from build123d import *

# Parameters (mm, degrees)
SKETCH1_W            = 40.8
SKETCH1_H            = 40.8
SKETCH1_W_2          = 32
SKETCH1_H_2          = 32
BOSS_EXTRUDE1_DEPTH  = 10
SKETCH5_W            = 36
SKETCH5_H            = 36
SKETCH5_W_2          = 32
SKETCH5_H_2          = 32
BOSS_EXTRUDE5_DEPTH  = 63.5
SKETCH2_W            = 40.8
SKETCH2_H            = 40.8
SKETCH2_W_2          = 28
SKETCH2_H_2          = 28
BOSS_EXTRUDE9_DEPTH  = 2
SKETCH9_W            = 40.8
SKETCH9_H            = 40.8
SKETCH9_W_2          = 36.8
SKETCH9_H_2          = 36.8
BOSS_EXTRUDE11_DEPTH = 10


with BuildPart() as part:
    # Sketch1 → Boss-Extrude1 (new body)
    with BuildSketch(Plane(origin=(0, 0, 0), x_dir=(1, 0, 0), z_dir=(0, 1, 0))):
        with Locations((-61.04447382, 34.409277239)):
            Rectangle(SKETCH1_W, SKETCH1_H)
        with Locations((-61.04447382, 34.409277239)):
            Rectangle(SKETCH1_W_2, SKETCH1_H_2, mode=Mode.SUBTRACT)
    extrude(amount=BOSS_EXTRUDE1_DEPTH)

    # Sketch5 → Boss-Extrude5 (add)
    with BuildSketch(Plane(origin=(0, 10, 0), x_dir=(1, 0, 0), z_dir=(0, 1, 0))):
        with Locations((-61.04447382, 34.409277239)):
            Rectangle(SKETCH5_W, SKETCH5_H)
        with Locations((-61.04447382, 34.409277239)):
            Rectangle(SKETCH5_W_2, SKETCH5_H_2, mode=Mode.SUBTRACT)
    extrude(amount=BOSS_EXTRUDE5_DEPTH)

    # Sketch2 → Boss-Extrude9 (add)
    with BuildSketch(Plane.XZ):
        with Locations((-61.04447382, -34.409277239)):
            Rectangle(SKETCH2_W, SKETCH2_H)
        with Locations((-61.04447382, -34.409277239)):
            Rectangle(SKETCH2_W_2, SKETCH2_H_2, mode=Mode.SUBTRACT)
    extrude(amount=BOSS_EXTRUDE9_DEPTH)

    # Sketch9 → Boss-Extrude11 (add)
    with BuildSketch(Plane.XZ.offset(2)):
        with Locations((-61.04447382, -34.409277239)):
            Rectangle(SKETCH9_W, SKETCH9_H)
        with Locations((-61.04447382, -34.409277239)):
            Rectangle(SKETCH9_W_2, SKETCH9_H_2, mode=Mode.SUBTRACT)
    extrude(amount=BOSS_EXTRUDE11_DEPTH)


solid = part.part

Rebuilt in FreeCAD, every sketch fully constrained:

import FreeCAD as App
import Part
import Sketcher
from FreeCAD import Vector


def add_polygon(sketch, points):
    """Adds a closed chain of lines whose ends are joined by coincident constraints."""
    first, n = sketch.GeometryCount, len(points)
    for a, b in zip(points, points[1:] + points[:1]):
        sketch.addGeometry(Part.LineSegment(App.Vector(*a, 0), App.Vector(*b, 0)), False)
    for i in range(n):
        sketch.addConstraint(Sketcher.Constraint("Coincident", first + i, 2, first + (i + 1) % n, 1))

doc = App.newDocument("Part")
params = doc.addObject("Spreadsheet::Sheet", "Params")
for row, (alias, value) in enumerate([
    ("sketch1_width", "32 mm"),
    ("sketch1_width2", "40.8 mm"),
    ("pad1_length", "10 mm"),
    ("sketch2_width", "36 mm"),
    ("sketch2_width2", "32 mm"),
    ("pad2_length", "63.5 mm"),
    ("sketch3_width", "28 mm"),
    ("sketch3_width2", "40.8 mm"),
    ("pad3_length", "2 mm"),
    ("sketch4_width", "40.8 mm"),
    ("sketch4_width2", "36.8 mm"),
    ("pad4_length", "10 mm"),
], start=1):
    params.set(f"A{row}", alias)
    params.set(f"B{row}", "=" + value)
    params.setAlias(f"B{row}", alias)

body = doc.addObject("PartDesign::Body", "Body")

sketch1 = doc.addObject("Sketcher::SketchObject", "Sketch")
body.addObject(sketch1)
sketch1.AttachmentSupport = (doc.XZ_Plane, [""])
sketch1.MapMode = "FlatFace"
add_polygon(sketch1, [(-81, -55), (-81, -14), (-41, -14), (-41, -55)])
add_polygon(sketch1, [(-45, -18), (-77, -18), (-77, -50), (-45, -50)])
sketch1.addConstraint([
    Sketcher.Constraint("Vertical", 0),
    Sketcher.Constraint("Horizontal", 1),
    Sketcher.Constraint("Vertical", 2),
    Sketcher.Constraint("Horizontal", 3),
    Sketcher.Constraint("Horizontal", 4),
    Sketcher.Constraint("Vertical", 5),
    Sketcher.Constraint("Horizontal", 6),
    Sketcher.Constraint("Vertical", 7),
    Sketcher.Constraint("Equal", 3, 0),
    Sketcher.Constraint("Equal", 6, 5),
    Sketcher.Constraint("DistanceX", 4, 2, 4, 1, 32.0),
    Sketcher.Constraint("DistanceX", 1, 1, 1, 2, 40.8),
    Sketcher.Constraint("DistanceX", 0, 2, 4, 2, 4.4),
    Sketcher.Constraint("DistanceY", 4, 2, 0, 2, 4.4),
    Sketcher.Constraint("DistanceX", 0, 2, -1, 1, 81.444474),
    Sketcher.Constraint("DistanceY", 0, 2, -1, 1, 14.009277),
])
sketch1.setExpression("Constraints[18]", "Params.sketch1_width")
sketch1.setExpression("Constraints[19]", "Params.sketch1_width2")
pad1 = doc.addObject("PartDesign::Pad", "Pad")
body.addObject(pad1)
pad1.Profile = sketch1
pad1.setExpression("Length", "Params.pad1_length")
pad1.Reversed = True

sketch2 = doc.addObject("Sketcher::SketchObject", "Sketch001")
body.addObject(sketch2)
sketch2.AttachmentSupport = (doc.XZ_Plane, [""])
sketch2.MapMode = "FlatFace"
sketch2.AttachmentOffset = App.Placement(Vector(0, 0, -10), App.Rotation())
add_polygon(sketch2, [(-79, -52), (-79, -16), (-43, -16), (-43, -52)])
add_polygon(sketch2, [(-45, -18), (-77, -18), (-77, -50), (-45, -50)])
sketch2.addConstraint([
    Sketcher.Constraint("Vertical", 0),
    Sketcher.Constraint("Horizontal", 1),
    Sketcher.Constraint("Vertical", 2),
    Sketcher.Constraint("Horizontal", 3),
    Sketcher.Constraint("Horizontal", 4),
    Sketcher.Constraint("Vertical", 5),
    Sketcher.Constraint("Horizontal", 6),
    Sketcher.Constraint("Vertical", 7),
    Sketcher.Constraint("Equal", 3, 0),
    Sketcher.Constraint("Equal", 6, 5),
    Sketcher.Constraint("DistanceX", 1, 1, 1, 2, 36.0),
    Sketcher.Constraint("DistanceX", 4, 2, 4, 1, 32.0),
    Sketcher.Constraint("DistanceX", 0, 2, 4, 2, 2.0),
    Sketcher.Constraint("DistanceY", 4, 2, 0, 2, 2.0),
    Sketcher.Constraint("DistanceX", 0, 2, -1, 1, 79.044474),
    Sketcher.Constraint("DistanceY", 0, 2, -1, 1, 16.409277),
])
sketch2.setExpression("Constraints[18]", "Params.sketch2_width")
sketch2.setExpression("Constraints[19]", "Params.sketch2_width2")
pad2 = doc.addObject("PartDesign::Pad", "Pad001")
body.addObject(pad2)
pad2.Profile = sketch2
pad2.setExpression("Length", "Params.pad2_length")
pad2.Reversed = True

sketch3 = doc.addObject("Sketcher::SketchObject", "Sketch002")
body.addObject(sketch3)
sketch3.AttachmentSupport = (doc.XZ_Plane, [""])
sketch3.MapMode = "FlatFace"
add_polygon(sketch3, [(-81, -14), (-81, -55), (-41, -55), (-41, -14)])
add_polygon(sketch3, [(-47, -48), (-75, -48), (-75, -20), (-47, -20)])
sketch3.addConstraint([
    Sketcher.Constraint("Vertical", 0),
    Sketcher.Constraint("Horizontal", 1),
    Sketcher.Constraint("Vertical", 2),
    Sketcher.Constraint("Horizontal", 3),
    Sketcher.Constraint("Horizontal", 4),
    Sketcher.Constraint("Vertical", 5),
    Sketcher.Constraint("Horizontal", 6),
    Sketcher.Constraint("Vertical", 7),
    Sketcher.Constraint("Equal", 3, 0),
    Sketcher.Constraint("Equal", 6, 5),
    Sketcher.Constraint("DistanceX", 4, 2, 4, 1, 28.0),
    Sketcher.Constraint("DistanceX", 1, 1, 1, 2, 40.8),
    Sketcher.Constraint("DistanceX", 0, 2, 4, 2, 6.4),
    Sketcher.Constraint("DistanceY", 0, 2, 4, 2, 6.4),
    Sketcher.Constraint("DistanceX", 0, 2, -1, 1, 81.444474),
    Sketcher.Constraint("DistanceY", 0, 2, -1, 1, 54.809277),
])
sketch3.setExpression("Constraints[18]", "Params.sketch3_width")
sketch3.setExpression("Constraints[19]", "Params.sketch3_width2")
pad3 = doc.addObject("PartDesign::Pad", "Pad002")
body.addObject(pad3)
pad3.Profile = sketch3
pad3.setExpression("Length", "Params.pad3_length")

sketch4 = doc.addObject("Sketcher::SketchObject", "Sketch003")
body.addObject(sketch4)
sketch4.AttachmentSupport = (doc.XZ_Plane, [""])
sketch4.MapMode = "FlatFace"
sketch4.AttachmentOffset = App.Placement(Vector(0, 0, 2), App.Rotation())
add_polygon(sketch4, [(-81, -14), (-81, -55), (-41, -55), (-41, -14)])
add_polygon(sketch4, [(-43, -53), (-79, -53), (-79, -16), (-43, -16)])
sketch4.addConstraint([
    Sketcher.Constraint("Vertical", 0),
    Sketcher.Constraint("Horizontal", 1),
    Sketcher.Constraint("Vertical", 2),
    Sketcher.Constraint("Horizontal", 3),
    Sketcher.Constraint("Horizontal", 4),
    Sketcher.Constraint("Vertical", 5),
    Sketcher.Constraint("Horizontal", 6),
    Sketcher.Constraint("Vertical", 7),
    Sketcher.Constraint("Equal", 3, 0),
    Sketcher.Constraint("Equal", 6, 5),
    Sketcher.Constraint("DistanceX", 1, 1, 1, 2, 40.8),
    Sketcher.Constraint("DistanceX", 4, 2, 4, 1, 36.8),
    Sketcher.Constraint("DistanceX", 0, 2, 4, 2, 2.0),
    Sketcher.Constraint("DistanceY", 0, 2, 4, 2, 2.0),
    Sketcher.Constraint("DistanceX", 0, 2, -1, 1, 81.444474),
    Sketcher.Constraint("DistanceY", 0, 2, -1, 1, 54.809277),
])
sketch4.setExpression("Constraints[18]", "Params.sketch4_width")
sketch4.setExpression("Constraints[19]", "Params.sketch4_width2")
pad4 = doc.addObject("PartDesign::Pad", "Pad003")
body.addObject(pad4)
pad4.Profile = sketch4
pad4.setExpression("Length", "Params.pad4_length")

doc.recompute()
